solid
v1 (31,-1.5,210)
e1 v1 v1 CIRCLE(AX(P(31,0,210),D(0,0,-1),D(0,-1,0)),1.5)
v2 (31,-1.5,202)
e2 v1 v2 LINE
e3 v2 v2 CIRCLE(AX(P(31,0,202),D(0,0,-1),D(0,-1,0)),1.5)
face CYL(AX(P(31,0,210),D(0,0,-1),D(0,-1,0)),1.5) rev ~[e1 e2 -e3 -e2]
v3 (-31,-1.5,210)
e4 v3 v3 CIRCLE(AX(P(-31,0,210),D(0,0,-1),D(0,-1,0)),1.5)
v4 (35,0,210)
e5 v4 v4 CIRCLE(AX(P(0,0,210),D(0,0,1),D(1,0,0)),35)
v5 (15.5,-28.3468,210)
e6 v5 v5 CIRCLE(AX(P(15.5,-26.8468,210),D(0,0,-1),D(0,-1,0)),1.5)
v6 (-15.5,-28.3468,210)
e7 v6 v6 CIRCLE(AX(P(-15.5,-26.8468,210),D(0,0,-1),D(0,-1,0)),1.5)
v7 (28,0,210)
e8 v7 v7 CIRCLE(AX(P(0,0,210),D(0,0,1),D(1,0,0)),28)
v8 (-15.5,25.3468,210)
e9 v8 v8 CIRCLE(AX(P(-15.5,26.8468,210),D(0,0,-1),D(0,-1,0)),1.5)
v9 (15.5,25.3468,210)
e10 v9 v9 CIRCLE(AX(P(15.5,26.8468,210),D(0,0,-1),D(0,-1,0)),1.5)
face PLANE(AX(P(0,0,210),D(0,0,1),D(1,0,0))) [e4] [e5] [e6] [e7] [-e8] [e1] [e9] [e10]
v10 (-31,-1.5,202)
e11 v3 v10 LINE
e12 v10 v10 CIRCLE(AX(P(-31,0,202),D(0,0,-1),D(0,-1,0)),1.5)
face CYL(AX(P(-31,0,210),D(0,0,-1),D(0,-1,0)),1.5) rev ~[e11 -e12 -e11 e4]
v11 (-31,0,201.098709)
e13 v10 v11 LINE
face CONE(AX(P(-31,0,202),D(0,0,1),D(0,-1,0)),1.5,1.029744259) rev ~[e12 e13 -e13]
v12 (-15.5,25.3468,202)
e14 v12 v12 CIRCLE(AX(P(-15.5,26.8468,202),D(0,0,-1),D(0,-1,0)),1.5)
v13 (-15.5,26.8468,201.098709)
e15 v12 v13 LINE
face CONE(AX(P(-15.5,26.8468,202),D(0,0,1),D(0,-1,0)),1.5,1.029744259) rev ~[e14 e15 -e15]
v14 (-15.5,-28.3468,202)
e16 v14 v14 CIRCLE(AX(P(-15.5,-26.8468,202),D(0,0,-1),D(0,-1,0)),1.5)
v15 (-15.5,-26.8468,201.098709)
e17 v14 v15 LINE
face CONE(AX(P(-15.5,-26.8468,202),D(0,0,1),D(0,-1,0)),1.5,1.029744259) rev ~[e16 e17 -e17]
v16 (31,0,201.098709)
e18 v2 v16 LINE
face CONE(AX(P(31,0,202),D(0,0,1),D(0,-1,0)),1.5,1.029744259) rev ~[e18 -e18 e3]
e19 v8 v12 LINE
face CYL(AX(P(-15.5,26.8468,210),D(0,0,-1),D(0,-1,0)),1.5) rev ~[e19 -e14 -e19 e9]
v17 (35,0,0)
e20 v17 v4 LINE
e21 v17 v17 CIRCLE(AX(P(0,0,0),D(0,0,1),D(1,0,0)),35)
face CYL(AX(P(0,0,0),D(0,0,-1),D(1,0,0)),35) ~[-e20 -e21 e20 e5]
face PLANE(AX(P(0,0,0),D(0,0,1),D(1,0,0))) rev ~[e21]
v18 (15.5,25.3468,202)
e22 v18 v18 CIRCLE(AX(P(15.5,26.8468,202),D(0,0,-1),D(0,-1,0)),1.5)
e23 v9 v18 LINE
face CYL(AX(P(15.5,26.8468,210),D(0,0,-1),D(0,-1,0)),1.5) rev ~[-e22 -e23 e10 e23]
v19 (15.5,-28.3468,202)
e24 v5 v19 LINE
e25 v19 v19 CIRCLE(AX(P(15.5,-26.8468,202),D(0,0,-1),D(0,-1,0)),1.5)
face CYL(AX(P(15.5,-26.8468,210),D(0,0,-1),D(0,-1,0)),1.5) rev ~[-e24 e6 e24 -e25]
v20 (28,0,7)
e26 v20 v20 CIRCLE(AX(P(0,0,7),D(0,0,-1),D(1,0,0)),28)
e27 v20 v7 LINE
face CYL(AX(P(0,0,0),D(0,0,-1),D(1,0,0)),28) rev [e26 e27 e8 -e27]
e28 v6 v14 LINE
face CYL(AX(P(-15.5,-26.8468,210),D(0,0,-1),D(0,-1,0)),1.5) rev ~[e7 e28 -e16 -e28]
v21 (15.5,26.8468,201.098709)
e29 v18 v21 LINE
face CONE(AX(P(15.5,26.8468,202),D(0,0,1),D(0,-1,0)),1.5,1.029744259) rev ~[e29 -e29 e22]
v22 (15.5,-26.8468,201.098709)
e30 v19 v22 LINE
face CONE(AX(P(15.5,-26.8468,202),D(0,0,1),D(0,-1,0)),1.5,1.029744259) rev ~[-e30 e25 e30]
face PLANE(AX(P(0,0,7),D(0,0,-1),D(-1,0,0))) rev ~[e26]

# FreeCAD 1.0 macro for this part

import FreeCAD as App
import Part
import Sketcher
from FreeCAD import Vector
Q = App.Units.Quantity

doc = App.newDocument("Part")
body = doc.addObject("PartDesign::Body", "Body")

# Sketch on XY plane
sketch1 = body.newObject("Sketcher::SketchObject", "Sketch")
sketch1.AttachmentSupport = (doc.getObject("XY_Plane"), [""])
sketch1.MapMode = "FlatFace"
sketch1.addGeometry(Part.Circle(Vector(0, 0, 0), Vector(0, 0, 1), 35), False)
sketch1.addGeometry(Part.Circle(Vector(0, 0, 0), Vector(0, 0, 1), 28), False)
sketch1.addConstraint(Sketcher.Constraint("Coincident", 0, 3, -1, 1))
sketch1.addConstraint(Sketcher.Constraint("Coincident", 1, 3, -1, 1))
sketch1.addConstraint(Sketcher.Constraint("Diameter", 0, Q("70 mm")))
sketch1.addConstraint(Sketcher.Constraint("Diameter", 1, Q("56 mm")))
pad1 = body.newObject("PartDesign::Pad", "Pad")
pad1.Profile = sketch1
pad1.Length = 210

# Sketch on XY plane
sketch2 = body.newObject("Sketcher::SketchObject", "Sketch001")
sketch2.AttachmentSupport = (doc.getObject("XY_Plane"), [""])
sketch2.MapMode = "FlatFace"
sketch2.addGeometry(Part.Circle(Vector(0, 0, 0), Vector(0, 0, 1), 32), False)
sketch2.addConstraint(Sketcher.Constraint("Coincident", 0, 3, -1, 1))
sketch2.addConstraint(Sketcher.Constraint("Diameter", 0, Q("63 mm")))
pad2 = body.newObject("PartDesign::Pad", "Pad001")
pad2.Profile = sketch2
pad2.Length = 7

# Sketch on XY plane
sketch3 = body.newObject("Sketcher::SketchObject", "Sketch002")
sketch3.AttachmentSupport = (doc.getObject("XY_Plane"), [""])
sketch3.MapMode = "FlatFace"
sketch3.AttachmentOffset = App.Placement(Vector(0, 0, 210), App.Rotation())
sketch3.addGeometry(Part.Circle(Vector(-15.5, 26.8, 0), Vector(0, 0, 1), 1.5), False)
sketch3.addGeometry(Part.Circle(Vector(-31, 0, 0), Vector(0, 0, 1), 1.5), False)
sketch3.addGeometry(Part.Circle(Vector(-15.5, -26.8, 0), Vector(0, 0, 1), 1.5), False)
sketch3.addGeometry(Part.Circle(Vector(15.5, 26.8, 0), Vector(0, 0, 1), 1.5), False)
sketch3.addGeometry(Part.Circle(Vector(31, 0, 0), Vector(0, 0, 1), 1.5), False)
sketch3.addGeometry(Part.Circle(Vector(15.5, -26.8, 0), Vector(0, 0, 1), 1.5), False)
sketch3.addConstraint(Sketcher.Constraint("Equal", 0, 1))
sketch3.addConstraint(Sketcher.Constraint("Equal", 1, 2))
sketch3.addConstraint(Sketcher.Constraint("Equal", 2, 3))
sketch3.addConstraint(Sketcher.Constraint("Equal", 3, 4))
sketch3.addConstraint(Sketcher.Constraint("Equal", 4, 5))
sketch3.addConstraint(Sketcher.Constraint("Symmetric", 2, 3, 3, 3, -1, 1))
sketch3.addConstraint(Sketcher.Constraint("Symmetric", 1, 3, 4, 3, -1, 1))
sketch3.addConstraint(Sketcher.Constraint("Symmetric", 0, 3, 5, 3, -1, 1))
sketch3.addConstraint(Sketcher.Constraint("Symmetric", 0, 3, 3, 3, -2))
sketch3.addConstraint(Sketcher.Constraint("PointOnObject", 1, 3, -1))
sketch3.addConstraint(Sketcher.Constraint("Diameter", 0, Q("3 mm")))
sketch3.addConstraint(Sketcher.Constraint("DistanceX", 1, 3, -1, 1, Q("31 mm")))
sketch3.addConstraint(Sketcher.Constraint("DistanceX", 0, 3, 3, 3, Q("31 mm")))
sketch3.addConstraint(Sketcher.Constraint("DistanceY", -1, 1, 0, 3, Q("26.8468 mm")))
doc.recompute()
hole = body.newObject("PartDesign::Hole", "Hole")
hole.Profile = sketch3
hole.ThreadType = "None"
hole.Diameter = 3
hole.DepthType = "Dimension"
hole.Depth = 8
hole.DrillPoint = "Angled"
hole.DrillPointAngle = 118

doc.recompute()
